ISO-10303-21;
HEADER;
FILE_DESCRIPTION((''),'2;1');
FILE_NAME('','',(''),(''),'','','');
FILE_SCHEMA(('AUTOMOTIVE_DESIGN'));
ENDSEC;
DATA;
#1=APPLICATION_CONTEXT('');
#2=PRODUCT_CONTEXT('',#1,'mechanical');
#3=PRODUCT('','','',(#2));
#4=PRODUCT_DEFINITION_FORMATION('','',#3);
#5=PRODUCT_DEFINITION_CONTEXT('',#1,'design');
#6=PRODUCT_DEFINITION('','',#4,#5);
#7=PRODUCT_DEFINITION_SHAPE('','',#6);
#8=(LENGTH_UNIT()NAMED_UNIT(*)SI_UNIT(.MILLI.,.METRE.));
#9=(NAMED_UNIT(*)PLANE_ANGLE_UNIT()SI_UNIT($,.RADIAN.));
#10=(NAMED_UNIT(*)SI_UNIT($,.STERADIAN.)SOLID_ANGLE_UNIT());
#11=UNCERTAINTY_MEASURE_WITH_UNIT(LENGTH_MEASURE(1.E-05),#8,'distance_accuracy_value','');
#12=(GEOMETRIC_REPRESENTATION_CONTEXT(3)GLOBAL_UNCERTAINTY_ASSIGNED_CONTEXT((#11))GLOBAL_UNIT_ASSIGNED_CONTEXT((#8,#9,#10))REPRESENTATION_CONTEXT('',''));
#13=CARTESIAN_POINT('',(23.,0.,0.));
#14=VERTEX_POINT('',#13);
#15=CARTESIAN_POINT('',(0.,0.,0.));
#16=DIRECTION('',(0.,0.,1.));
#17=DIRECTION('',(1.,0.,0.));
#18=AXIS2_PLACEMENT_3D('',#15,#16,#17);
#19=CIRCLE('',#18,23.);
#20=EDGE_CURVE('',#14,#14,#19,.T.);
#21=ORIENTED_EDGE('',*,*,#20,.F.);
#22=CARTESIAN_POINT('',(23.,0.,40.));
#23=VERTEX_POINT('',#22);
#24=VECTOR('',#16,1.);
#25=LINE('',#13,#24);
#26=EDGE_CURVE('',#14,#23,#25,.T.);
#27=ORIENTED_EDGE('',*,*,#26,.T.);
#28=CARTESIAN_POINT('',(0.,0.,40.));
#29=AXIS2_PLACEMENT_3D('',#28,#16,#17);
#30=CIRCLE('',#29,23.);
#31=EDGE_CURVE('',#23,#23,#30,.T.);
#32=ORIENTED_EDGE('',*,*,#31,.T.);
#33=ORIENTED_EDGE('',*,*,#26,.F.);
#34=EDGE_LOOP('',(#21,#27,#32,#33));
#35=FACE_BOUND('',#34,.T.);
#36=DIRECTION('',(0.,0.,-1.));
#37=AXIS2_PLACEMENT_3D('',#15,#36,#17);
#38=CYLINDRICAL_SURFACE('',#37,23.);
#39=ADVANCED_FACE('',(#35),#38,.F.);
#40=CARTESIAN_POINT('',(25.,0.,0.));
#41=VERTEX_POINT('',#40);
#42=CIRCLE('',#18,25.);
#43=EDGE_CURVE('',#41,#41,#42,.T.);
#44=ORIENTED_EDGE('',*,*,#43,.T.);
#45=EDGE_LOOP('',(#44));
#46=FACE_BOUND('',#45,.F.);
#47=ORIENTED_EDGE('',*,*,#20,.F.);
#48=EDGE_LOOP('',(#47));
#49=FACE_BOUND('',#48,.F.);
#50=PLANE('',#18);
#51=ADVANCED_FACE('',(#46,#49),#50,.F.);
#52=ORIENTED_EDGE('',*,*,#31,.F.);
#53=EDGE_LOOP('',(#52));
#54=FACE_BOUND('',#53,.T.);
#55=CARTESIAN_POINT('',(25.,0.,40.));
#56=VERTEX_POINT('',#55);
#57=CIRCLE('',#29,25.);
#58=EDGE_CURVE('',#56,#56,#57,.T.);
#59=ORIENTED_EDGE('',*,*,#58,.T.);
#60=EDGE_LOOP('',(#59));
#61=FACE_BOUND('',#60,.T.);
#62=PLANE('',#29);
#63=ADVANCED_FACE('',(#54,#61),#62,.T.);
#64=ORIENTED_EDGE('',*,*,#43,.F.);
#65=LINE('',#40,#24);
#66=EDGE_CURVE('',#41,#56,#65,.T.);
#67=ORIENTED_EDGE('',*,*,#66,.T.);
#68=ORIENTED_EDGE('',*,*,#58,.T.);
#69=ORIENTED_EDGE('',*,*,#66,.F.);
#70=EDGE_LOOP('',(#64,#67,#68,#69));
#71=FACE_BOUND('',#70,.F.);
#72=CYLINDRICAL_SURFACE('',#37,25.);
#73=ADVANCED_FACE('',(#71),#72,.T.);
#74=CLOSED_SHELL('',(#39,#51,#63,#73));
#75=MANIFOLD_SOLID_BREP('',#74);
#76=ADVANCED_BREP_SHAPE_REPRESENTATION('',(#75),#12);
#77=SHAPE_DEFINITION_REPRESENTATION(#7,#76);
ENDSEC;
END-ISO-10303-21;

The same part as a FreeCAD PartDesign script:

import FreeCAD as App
import Part
import Sketcher

V = App.Vector

doc = App.newDocument("Part")
body = doc.addObject("PartDesign::Body", "Body")

sketch1 = body.newObject("Sketcher::SketchObject", "Sketch")
sketch1.AttachmentSupport = (doc.getObject("XY_Plane"), [""])
sketch1.MapMode = "FlatFace"
sketch1.addGeometry(Part.Circle(V(0, 0, 0), V(0, 0, 1), 25), False)
sketch1.addGeometry(Part.Circle(V(0, 0, 0), V(0, 0, 1), 23), False)
sketch1.addConstraint(Sketcher.Constraint("Coincident", 0, 3, -1, 1))
sketch1.addConstraint(Sketcher.Constraint("Coincident", 1, 3, -1, 1))
sketch1.addConstraint(Sketcher.Constraint("Diameter", 0, 50.0))
sketch1.addConstraint(Sketcher.Constraint("Diameter", 1, 46.0))
pad1 = body.newObject("PartDesign::Pad", "Pad")
pad1.Profile = sketch1
pad1.Length = 40

doc.recompute()
